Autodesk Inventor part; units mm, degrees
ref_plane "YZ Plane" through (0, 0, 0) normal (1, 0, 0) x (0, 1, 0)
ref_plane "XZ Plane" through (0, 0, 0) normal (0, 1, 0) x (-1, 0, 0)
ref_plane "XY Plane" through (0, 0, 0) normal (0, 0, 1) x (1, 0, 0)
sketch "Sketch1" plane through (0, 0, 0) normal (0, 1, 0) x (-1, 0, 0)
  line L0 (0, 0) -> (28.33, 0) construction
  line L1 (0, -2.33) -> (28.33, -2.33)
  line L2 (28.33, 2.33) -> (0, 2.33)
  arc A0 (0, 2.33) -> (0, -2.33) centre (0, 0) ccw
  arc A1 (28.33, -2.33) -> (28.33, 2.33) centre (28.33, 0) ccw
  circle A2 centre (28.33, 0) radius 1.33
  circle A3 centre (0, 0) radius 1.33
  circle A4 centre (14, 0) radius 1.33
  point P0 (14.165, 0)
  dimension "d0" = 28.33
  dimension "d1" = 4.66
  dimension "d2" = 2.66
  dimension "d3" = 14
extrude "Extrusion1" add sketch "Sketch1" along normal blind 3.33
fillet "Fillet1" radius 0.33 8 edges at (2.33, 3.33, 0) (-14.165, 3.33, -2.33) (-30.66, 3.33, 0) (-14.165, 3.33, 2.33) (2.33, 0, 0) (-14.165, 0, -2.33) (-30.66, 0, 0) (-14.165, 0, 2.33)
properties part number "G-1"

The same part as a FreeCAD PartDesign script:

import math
import FreeCAD as App
import Part
import Sketcher
from FreeCAD import Vector
Q = App.Units.Quantity


def edges_at(feature, points):
    """Names of the edges that pass closest to the given points."""
    edges = feature.Shape.Edges
    near = lambda p: min(range(len(edges)), key=lambda i: edges[i].distToShape(Part.Vertex(*p))[0])
    return sorted({f"Edge{near(p) + 1}" for p in points})

doc = App.newDocument("Part")
body = doc.addObject("PartDesign::Body", "Body")

# Sketch on XZ plane
sketch1 = body.newObject("Sketcher::SketchObject", "Sketch")
sketch1.AttachmentSupport = (doc.getObject("XZ_Plane"), [""])
sketch1.MapMode = "FlatFace"
sketch1.addGeometry(Part.ArcOfCircle(Part.Circle(Vector(0, 0, 0), Vector(0, 0, 1), 2.33), math.radians(-90), math.radians(90)), False)
sketch1.addGeometry(Part.LineSegment(Vector(0, -2.33, 0), Vector(-28.33, -2.33, 0)), False)
sketch1.addGeometry(Part.ArcOfCircle(Part.Circle(Vector(-28.33, 0, 0), Vector(0, 0, 1), 2.33), math.radians(90), math.radians(270)), False)
sketch1.addGeometry(Part.LineSegment(Vector(-28.33, 2.33, 0), Vector(0, 2.33, 0)), False)
sketch1.addGeometry(Part.Circle(Vector(0, 0, 0), Vector(0, 0, 1), 1.33), False)
sketch1.addGeometry(Part.Circle(Vector(-14, 0, 0), Vector(0, 0, 1), 1.33), False)
sketch1.addGeometry(Part.Circle(Vector(-28.33, 0, 0), Vector(0, 0, 1), 1.33), False)
sketch1.addConstraint(Sketcher.Constraint("Tangent", 0, 1, 1, 1))
sketch1.addConstraint(Sketcher.Constraint("Tangent", 1, 2, 2, 2))
sketch1.addConstraint(Sketcher.Constraint("Tangent", 2, 1, 3, 1))
sketch1.addConstraint(Sketcher.Constraint("Tangent", 3, 2, 0, 2))
sketch1.addConstraint(Sketcher.Constraint("Horizontal", 1))
sketch1.addConstraint(Sketcher.Constraint("Horizontal", 3))
sketch1.addConstraint(Sketcher.Constraint("Coincident", 0, 3, -1, 1))
sketch1.addConstraint(Sketcher.Constraint("Coincident", 4, 3, -1, 1))
sketch1.addConstraint(Sketcher.Constraint("Coincident", 6, 3, 2, 3))
sketch1.addConstraint(Sketcher.Constraint("Equal", 4, 5))
sketch1.addConstraint(Sketcher.Constraint("Equal", 5, 6))
sketch1.addConstraint(Sketcher.Constraint("PointOnObject", 5, 3, -1))
sketch1.addConstraint(Sketcher.Constraint("Diameter", 4, 2.66))
sketch1.addConstraint(Sketcher.Constraint("Radius", 0, 2.33))
sketch1.addConstraint(Sketcher.Constraint("DistanceX", 1, 2, 1, 1, 28.33))
sketch1.addConstraint(Sketcher.Constraint("DistanceX", 5, 3, -1, 1, 14.0))
pad1 = body.newObject("PartDesign::Pad", "Pad")
pad1.Profile = sketch1
pad1.Length = Q("0.1311024 in")
pad1.Reversed = True
doc.recompute()

fillet = body.newObject("PartDesign::Fillet", "Fillet")
fillet.Base = (pad1, edges_at(pad1, [
    (2.33, 3.33, 0),
    (-14.165, 3.33, -2.33),
    (-30.66, 3.33, 0),
    (-14.165, 3.33, 2.33),
    (2.33, 0, 0),
    (-14.165, 0, -2.33),
    (-30.66, 0, 0),
    (-14.165, 0, 2.33),
]))
fillet.Radius = Q("0.0129921 in")

doc.recompute()
